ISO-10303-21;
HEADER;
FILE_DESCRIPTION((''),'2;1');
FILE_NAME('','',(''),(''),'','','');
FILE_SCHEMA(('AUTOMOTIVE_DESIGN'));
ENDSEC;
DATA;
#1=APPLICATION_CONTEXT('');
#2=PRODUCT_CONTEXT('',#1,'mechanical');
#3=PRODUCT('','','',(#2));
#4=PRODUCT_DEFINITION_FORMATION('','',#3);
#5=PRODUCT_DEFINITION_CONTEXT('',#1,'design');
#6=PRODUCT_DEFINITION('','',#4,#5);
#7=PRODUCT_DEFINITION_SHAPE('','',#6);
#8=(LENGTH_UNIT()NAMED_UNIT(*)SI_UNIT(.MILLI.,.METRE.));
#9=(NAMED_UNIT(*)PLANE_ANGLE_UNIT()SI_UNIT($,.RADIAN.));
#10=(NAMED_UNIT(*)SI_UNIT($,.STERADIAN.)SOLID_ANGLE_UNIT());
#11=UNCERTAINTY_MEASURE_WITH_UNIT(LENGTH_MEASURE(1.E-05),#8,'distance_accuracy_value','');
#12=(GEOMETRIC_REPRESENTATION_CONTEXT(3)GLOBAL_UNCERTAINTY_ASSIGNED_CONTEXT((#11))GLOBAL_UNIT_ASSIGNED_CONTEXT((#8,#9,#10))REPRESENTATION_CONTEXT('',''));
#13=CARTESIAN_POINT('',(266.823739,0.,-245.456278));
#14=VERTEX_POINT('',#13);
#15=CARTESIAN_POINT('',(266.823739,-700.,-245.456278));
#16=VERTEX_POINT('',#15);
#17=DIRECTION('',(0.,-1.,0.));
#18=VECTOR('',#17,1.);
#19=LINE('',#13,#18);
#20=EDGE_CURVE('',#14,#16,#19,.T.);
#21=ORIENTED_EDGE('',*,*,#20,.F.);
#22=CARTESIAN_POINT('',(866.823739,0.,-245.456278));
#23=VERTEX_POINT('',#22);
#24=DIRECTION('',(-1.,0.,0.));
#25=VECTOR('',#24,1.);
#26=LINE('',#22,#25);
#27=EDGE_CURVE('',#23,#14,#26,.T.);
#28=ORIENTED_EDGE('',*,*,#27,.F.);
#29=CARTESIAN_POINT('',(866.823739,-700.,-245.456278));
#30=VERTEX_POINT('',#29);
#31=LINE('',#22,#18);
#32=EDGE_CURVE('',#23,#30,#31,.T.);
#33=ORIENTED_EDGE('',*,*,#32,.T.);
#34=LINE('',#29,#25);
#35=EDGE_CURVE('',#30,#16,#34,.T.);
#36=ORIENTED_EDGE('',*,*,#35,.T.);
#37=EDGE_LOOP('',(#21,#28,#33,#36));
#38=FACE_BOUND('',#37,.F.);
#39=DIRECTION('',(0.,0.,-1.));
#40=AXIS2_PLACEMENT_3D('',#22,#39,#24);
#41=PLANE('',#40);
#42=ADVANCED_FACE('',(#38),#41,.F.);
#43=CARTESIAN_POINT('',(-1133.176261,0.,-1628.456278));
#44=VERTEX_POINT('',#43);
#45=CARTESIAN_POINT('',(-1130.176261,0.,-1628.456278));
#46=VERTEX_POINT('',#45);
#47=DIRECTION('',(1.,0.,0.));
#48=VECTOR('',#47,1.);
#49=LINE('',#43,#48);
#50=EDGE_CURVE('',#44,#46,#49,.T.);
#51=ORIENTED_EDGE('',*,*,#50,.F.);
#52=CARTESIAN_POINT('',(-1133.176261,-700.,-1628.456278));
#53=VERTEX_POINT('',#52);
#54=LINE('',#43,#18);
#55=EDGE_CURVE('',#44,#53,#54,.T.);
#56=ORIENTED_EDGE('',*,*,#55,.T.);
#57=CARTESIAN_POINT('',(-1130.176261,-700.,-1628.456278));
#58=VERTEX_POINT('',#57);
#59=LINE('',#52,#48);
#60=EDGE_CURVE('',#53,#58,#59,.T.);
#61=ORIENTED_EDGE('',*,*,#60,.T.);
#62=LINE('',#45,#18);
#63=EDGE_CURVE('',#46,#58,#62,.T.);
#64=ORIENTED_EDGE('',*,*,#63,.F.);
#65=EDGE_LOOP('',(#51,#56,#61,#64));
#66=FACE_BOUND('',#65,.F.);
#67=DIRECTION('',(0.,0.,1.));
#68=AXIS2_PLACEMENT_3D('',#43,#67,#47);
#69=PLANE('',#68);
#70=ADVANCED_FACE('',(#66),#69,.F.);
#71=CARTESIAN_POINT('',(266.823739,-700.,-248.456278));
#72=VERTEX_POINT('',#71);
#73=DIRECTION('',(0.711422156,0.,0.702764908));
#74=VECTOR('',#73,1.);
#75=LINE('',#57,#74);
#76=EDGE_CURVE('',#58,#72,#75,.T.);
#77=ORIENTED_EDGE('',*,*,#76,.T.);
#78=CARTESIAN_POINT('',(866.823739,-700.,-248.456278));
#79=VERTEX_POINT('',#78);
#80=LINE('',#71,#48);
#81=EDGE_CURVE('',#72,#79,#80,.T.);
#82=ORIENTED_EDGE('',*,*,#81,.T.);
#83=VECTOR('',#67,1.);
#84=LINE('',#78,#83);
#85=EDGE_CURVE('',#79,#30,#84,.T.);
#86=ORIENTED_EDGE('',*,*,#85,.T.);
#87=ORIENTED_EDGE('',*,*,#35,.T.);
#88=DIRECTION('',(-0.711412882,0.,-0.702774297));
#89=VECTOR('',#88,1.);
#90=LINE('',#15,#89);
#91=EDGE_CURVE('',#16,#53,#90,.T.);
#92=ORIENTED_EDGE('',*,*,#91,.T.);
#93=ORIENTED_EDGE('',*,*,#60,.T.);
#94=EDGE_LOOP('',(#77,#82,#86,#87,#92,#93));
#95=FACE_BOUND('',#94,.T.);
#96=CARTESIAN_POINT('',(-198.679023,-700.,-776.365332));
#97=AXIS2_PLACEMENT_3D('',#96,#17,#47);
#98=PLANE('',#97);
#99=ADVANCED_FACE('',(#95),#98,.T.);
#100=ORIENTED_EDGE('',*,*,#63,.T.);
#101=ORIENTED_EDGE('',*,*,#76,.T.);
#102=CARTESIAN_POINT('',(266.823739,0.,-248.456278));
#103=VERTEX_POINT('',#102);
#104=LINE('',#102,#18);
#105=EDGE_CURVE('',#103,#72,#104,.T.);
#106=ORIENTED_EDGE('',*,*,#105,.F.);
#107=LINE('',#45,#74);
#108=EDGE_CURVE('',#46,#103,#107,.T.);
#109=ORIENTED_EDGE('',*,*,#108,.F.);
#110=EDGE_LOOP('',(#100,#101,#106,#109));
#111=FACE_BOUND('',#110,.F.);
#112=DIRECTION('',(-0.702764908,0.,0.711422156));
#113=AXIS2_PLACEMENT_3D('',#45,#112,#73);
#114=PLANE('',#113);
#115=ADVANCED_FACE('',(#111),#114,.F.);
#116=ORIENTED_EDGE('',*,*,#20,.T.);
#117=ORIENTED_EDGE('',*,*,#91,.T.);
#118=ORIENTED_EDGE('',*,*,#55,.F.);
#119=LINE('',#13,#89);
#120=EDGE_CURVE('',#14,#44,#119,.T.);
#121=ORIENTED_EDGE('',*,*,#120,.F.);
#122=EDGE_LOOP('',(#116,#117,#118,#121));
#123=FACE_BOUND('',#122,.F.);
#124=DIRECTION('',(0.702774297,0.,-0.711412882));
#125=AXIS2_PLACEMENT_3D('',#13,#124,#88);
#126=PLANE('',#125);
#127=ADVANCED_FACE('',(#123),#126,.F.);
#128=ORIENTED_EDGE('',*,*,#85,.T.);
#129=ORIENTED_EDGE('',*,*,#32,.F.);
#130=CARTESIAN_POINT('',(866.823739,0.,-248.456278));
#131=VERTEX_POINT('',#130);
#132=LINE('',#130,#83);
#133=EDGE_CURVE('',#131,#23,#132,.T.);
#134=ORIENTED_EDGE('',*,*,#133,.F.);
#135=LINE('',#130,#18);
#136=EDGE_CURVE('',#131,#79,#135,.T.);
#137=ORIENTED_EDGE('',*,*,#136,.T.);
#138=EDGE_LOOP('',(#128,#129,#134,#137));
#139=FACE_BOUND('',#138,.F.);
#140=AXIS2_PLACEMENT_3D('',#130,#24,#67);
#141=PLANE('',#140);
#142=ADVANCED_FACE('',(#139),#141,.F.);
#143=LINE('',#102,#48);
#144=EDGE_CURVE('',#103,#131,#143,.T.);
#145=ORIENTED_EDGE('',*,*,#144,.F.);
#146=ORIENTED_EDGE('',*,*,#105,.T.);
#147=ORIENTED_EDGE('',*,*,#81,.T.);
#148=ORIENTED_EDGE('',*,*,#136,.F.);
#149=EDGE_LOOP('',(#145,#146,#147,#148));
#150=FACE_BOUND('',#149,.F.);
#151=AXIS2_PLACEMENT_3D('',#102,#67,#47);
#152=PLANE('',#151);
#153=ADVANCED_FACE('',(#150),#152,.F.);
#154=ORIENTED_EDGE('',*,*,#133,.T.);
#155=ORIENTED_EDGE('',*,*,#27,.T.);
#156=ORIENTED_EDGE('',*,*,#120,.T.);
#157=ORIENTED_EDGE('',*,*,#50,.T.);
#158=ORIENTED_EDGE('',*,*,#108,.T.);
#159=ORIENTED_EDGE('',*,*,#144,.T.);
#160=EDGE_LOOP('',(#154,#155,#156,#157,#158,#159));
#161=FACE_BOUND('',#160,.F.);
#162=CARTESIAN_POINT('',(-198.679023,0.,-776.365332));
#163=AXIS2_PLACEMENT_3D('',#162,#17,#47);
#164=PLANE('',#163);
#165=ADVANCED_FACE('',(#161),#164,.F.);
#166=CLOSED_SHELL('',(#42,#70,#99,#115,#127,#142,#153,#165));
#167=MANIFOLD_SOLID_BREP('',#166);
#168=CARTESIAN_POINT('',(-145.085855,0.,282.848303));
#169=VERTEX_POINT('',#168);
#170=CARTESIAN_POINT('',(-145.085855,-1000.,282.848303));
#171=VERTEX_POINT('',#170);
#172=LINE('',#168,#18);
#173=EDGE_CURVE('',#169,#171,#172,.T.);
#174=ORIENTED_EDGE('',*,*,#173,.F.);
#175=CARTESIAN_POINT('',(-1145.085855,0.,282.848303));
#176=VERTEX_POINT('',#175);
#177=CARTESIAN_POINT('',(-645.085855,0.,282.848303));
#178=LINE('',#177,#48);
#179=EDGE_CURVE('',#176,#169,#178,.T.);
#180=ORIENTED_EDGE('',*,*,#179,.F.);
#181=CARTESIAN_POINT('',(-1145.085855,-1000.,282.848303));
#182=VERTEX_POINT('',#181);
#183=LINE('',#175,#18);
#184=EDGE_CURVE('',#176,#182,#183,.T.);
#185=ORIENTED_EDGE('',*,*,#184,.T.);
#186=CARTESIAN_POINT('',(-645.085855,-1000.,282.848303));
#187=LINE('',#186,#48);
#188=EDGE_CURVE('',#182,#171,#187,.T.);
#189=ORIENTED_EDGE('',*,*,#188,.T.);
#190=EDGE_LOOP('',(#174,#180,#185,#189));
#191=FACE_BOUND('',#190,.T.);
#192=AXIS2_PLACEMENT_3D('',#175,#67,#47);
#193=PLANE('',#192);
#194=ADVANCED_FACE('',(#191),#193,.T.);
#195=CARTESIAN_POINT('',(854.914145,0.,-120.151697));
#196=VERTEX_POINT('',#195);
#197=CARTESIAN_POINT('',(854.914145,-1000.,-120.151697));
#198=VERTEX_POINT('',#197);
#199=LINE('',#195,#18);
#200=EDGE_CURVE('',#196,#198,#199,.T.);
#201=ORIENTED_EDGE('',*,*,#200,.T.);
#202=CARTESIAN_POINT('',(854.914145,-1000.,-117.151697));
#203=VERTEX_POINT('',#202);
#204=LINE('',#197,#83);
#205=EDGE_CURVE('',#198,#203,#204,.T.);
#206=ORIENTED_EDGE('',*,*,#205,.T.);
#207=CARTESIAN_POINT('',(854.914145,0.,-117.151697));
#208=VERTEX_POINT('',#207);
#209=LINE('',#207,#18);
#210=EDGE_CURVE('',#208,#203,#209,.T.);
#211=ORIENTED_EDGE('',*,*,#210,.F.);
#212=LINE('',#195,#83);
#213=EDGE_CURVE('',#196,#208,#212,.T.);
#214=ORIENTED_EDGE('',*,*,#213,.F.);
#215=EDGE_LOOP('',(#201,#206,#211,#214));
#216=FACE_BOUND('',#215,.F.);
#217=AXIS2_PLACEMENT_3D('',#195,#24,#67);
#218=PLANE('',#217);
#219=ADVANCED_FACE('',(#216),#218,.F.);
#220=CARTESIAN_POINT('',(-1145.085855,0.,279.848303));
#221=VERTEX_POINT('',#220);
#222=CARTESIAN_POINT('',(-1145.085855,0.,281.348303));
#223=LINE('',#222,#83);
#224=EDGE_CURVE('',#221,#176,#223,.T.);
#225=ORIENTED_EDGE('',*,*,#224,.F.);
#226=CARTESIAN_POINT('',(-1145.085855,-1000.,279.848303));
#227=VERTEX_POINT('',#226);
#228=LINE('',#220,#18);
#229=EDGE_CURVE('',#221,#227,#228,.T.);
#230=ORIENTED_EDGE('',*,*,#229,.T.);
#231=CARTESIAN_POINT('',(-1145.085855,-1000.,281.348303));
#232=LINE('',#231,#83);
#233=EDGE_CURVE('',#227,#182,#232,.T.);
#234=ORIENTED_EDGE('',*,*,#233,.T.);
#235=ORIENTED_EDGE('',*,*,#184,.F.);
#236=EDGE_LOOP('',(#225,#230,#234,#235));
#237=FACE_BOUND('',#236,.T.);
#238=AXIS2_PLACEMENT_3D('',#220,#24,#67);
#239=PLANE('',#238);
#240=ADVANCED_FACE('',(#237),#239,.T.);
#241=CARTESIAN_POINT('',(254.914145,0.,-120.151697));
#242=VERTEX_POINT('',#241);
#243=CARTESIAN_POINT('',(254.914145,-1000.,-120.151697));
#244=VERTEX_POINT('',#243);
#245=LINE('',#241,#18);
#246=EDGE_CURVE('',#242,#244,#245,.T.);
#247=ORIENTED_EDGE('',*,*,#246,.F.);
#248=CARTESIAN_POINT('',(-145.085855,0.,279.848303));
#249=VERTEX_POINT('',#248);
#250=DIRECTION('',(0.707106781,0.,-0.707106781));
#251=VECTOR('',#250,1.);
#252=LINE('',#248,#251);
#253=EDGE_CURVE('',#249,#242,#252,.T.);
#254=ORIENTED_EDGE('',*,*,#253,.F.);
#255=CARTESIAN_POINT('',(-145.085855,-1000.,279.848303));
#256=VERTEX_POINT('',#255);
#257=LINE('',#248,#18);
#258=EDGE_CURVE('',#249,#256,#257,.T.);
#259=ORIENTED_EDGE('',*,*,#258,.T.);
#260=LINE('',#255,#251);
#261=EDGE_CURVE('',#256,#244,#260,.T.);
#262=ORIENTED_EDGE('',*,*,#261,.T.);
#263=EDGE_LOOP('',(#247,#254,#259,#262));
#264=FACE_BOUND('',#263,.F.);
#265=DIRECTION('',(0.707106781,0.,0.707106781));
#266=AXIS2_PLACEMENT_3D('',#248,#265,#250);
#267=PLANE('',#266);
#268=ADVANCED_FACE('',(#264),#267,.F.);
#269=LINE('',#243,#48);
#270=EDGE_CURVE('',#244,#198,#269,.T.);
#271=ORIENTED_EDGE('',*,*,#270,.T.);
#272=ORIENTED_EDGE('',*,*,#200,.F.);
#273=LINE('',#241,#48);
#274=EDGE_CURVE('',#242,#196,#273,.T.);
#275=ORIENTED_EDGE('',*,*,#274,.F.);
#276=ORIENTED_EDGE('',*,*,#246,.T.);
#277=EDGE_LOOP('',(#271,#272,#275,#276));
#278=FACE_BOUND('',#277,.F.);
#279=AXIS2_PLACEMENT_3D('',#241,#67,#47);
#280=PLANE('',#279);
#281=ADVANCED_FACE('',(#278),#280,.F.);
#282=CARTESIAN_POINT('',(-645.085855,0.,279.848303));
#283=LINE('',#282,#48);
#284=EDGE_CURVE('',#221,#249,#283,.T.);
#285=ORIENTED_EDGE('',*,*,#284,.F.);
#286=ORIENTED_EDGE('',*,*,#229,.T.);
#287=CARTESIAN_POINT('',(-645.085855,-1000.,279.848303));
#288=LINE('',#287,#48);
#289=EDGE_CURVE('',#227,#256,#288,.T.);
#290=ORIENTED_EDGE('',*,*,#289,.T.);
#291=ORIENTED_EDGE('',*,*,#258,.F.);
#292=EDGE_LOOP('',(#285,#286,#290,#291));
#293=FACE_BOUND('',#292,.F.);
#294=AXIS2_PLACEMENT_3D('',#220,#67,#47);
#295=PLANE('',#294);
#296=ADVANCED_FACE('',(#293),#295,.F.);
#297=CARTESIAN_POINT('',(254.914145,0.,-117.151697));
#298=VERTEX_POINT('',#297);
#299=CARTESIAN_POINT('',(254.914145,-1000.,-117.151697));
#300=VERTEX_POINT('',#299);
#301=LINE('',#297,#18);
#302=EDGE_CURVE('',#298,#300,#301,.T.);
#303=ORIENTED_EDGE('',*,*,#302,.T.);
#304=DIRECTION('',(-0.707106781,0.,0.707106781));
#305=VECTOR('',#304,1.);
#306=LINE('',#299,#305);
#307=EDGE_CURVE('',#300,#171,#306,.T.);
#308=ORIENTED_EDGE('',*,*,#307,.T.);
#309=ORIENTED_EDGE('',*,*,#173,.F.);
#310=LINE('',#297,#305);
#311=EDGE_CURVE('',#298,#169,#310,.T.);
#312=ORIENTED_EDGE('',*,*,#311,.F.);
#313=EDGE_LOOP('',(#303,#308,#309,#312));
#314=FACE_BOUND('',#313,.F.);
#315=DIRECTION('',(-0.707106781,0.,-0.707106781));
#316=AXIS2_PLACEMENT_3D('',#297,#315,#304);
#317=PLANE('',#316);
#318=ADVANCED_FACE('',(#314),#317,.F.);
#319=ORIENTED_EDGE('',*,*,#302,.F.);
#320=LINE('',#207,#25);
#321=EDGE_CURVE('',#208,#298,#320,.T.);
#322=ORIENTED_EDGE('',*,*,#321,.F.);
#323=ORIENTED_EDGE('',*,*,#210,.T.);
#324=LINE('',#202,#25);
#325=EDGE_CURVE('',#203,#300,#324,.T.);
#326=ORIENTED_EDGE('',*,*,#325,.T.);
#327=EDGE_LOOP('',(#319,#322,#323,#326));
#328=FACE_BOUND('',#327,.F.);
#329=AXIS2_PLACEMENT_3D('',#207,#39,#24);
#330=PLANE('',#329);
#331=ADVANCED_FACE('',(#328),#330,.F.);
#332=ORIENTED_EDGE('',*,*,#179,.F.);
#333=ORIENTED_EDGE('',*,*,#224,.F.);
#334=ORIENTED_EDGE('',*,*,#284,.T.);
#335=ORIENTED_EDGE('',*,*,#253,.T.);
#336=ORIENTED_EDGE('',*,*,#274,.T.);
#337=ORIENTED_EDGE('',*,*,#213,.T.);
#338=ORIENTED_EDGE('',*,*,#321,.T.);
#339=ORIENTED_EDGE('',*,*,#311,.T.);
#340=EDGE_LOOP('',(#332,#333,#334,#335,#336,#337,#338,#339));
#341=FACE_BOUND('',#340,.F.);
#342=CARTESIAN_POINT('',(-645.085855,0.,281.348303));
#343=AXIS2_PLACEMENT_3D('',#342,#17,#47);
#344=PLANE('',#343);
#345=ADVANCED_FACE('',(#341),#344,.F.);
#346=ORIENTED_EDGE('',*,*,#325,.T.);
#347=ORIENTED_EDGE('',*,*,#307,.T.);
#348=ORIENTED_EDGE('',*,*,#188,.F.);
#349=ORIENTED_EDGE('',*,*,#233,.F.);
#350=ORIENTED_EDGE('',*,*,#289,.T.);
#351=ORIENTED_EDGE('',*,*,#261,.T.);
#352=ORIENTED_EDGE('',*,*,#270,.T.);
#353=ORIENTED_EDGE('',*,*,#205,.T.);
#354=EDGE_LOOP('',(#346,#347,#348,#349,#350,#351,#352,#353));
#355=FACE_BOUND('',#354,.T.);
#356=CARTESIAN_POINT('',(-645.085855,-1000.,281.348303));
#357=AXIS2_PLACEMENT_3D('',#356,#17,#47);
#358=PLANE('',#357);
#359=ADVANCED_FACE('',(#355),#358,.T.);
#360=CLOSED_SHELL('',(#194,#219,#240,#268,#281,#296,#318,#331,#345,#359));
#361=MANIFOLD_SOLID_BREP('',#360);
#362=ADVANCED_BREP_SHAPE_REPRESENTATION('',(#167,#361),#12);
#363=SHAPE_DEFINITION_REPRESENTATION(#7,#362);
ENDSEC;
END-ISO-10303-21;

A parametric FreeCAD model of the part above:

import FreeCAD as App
import Part
import Sketcher
Q = App.Units.Quantity


def add_polygon(sketch, points):
    """Adds a closed chain of lines whose ends are joined by coincident constraints."""
    first, n = sketch.GeometryCount, len(points)
    for a, b in zip(points, points[1:] + points[:1]):
        sketch.addGeometry(Part.LineSegment(App.Vector(*a, 0), App.Vector(*b, 0)), False)
    for i in range(n):
        sketch.addConstraint(Sketcher.Constraint("Coincident", first + i, 2, first + (i + 1) % n, 1))

doc = App.newDocument("Part")
body = doc.addObject("PartDesign::Body", "Body")

sketch1 = body.newObject("Sketcher::SketchObject", "Sketch")
sketch1.AttachmentSupport = (doc.getObject("XZ_Plane"), [""])
sketch1.MapMode = "FlatFace"
add_polygon(sketch1, [(-1145.085855, 282.848303), (-1145.085855, 279.848303), (-145.085855, 279.848303), (254.914145, -120.151697), (854.914145, -120.151697), (854.914145, -117.151697), (254.914145, -117.151697), (-145.085855, 282.848303)])
sketch1.addConstraint([
    Sketcher.Constraint("Vertical", 0),
    Sketcher.Constraint("Horizontal", 1),
    Sketcher.Constraint("Horizontal", 3),
    Sketcher.Constraint("Vertical", 4),
    Sketcher.Constraint("Horizontal", 5),
    Sketcher.Constraint("Horizontal", 7),
    Sketcher.Constraint("Parallel", 2, 6),
    Sketcher.Constraint("Vertical", 2, 2, 5, 2),
    Sketcher.Constraint("Vertical", 1, 2, 6, 2),
    Sketcher.Constraint("DistanceX", 1, 1, 1, 2, 1000.0),
    Sketcher.Constraint("DistanceX", 3, 1, 3, 2, 600.0),
    Sketcher.Constraint("DistanceY", 0, 2, 0, 1, 3.0),
    Sketcher.Constraint("Angle", 2, Q("-45 deg")),
    Sketcher.Constraint("DistanceX", 1, 2, 2, 2, 400.0),
    Sketcher.Constraint("DistanceX", 0, 2, -1, 1, 1145.085855),
    Sketcher.Constraint("DistanceY", -1, 1, 0, 2, 279.848303),
])
pad1 = body.newObject("PartDesign::Pad", "Pad")
pad1.Profile = sketch1
pad1.Length = 1000
body2 = doc.addObject("PartDesign::Body", "Body001")

sketch2 = body2.newObject("Sketcher::SketchObject", "Sketch001")
sketch2.AttachmentSupport = (doc.getObject("XZ_Plane001"), [""])
sketch2.MapMode = "FlatFace"
add_polygon(sketch2, [(866.823739, -248.456278), (866.823739, -245.456278), (266.823739, -245.456278), (-1133.176261, -1628.456278), (-1130.176261, -1628.456278), (266.823739, -248.456278)])
sketch2.addConstraint([
    Sketcher.Constraint("Vertical", 0),
    Sketcher.Constraint("Horizontal", 1),
    Sketcher.Constraint("Horizontal", 3),
    Sketcher.Constraint("Horizontal", 5),
    Sketcher.Constraint("Vertical", 1, 2, 4, 2),
    Sketcher.Constraint("Equal", 3, 0),
    Sketcher.Constraint("DistanceX", 1, 2, 1, 1, 600.0),
    Sketcher.Constraint("DistanceX", 3, 1, 3, 2, 3.0),
    Sketcher.Constraint("DistanceX", 2, 2, 1, 2, 1400.0),
    Sketcher.Constraint("DistanceY", 2, 2, 1, 2, 1383.0),
    Sketcher.Constraint("DistanceX", -1, 1, 0, 2, 866.823739),
    Sketcher.Constraint("DistanceY", 0, 2, -1, 1, 245.456278),
])
pad2 = body2.newObject("PartDesign::Pad", "Pad001")
pad2.Profile = sketch2
pad2.Length = 700

doc.recompute()
